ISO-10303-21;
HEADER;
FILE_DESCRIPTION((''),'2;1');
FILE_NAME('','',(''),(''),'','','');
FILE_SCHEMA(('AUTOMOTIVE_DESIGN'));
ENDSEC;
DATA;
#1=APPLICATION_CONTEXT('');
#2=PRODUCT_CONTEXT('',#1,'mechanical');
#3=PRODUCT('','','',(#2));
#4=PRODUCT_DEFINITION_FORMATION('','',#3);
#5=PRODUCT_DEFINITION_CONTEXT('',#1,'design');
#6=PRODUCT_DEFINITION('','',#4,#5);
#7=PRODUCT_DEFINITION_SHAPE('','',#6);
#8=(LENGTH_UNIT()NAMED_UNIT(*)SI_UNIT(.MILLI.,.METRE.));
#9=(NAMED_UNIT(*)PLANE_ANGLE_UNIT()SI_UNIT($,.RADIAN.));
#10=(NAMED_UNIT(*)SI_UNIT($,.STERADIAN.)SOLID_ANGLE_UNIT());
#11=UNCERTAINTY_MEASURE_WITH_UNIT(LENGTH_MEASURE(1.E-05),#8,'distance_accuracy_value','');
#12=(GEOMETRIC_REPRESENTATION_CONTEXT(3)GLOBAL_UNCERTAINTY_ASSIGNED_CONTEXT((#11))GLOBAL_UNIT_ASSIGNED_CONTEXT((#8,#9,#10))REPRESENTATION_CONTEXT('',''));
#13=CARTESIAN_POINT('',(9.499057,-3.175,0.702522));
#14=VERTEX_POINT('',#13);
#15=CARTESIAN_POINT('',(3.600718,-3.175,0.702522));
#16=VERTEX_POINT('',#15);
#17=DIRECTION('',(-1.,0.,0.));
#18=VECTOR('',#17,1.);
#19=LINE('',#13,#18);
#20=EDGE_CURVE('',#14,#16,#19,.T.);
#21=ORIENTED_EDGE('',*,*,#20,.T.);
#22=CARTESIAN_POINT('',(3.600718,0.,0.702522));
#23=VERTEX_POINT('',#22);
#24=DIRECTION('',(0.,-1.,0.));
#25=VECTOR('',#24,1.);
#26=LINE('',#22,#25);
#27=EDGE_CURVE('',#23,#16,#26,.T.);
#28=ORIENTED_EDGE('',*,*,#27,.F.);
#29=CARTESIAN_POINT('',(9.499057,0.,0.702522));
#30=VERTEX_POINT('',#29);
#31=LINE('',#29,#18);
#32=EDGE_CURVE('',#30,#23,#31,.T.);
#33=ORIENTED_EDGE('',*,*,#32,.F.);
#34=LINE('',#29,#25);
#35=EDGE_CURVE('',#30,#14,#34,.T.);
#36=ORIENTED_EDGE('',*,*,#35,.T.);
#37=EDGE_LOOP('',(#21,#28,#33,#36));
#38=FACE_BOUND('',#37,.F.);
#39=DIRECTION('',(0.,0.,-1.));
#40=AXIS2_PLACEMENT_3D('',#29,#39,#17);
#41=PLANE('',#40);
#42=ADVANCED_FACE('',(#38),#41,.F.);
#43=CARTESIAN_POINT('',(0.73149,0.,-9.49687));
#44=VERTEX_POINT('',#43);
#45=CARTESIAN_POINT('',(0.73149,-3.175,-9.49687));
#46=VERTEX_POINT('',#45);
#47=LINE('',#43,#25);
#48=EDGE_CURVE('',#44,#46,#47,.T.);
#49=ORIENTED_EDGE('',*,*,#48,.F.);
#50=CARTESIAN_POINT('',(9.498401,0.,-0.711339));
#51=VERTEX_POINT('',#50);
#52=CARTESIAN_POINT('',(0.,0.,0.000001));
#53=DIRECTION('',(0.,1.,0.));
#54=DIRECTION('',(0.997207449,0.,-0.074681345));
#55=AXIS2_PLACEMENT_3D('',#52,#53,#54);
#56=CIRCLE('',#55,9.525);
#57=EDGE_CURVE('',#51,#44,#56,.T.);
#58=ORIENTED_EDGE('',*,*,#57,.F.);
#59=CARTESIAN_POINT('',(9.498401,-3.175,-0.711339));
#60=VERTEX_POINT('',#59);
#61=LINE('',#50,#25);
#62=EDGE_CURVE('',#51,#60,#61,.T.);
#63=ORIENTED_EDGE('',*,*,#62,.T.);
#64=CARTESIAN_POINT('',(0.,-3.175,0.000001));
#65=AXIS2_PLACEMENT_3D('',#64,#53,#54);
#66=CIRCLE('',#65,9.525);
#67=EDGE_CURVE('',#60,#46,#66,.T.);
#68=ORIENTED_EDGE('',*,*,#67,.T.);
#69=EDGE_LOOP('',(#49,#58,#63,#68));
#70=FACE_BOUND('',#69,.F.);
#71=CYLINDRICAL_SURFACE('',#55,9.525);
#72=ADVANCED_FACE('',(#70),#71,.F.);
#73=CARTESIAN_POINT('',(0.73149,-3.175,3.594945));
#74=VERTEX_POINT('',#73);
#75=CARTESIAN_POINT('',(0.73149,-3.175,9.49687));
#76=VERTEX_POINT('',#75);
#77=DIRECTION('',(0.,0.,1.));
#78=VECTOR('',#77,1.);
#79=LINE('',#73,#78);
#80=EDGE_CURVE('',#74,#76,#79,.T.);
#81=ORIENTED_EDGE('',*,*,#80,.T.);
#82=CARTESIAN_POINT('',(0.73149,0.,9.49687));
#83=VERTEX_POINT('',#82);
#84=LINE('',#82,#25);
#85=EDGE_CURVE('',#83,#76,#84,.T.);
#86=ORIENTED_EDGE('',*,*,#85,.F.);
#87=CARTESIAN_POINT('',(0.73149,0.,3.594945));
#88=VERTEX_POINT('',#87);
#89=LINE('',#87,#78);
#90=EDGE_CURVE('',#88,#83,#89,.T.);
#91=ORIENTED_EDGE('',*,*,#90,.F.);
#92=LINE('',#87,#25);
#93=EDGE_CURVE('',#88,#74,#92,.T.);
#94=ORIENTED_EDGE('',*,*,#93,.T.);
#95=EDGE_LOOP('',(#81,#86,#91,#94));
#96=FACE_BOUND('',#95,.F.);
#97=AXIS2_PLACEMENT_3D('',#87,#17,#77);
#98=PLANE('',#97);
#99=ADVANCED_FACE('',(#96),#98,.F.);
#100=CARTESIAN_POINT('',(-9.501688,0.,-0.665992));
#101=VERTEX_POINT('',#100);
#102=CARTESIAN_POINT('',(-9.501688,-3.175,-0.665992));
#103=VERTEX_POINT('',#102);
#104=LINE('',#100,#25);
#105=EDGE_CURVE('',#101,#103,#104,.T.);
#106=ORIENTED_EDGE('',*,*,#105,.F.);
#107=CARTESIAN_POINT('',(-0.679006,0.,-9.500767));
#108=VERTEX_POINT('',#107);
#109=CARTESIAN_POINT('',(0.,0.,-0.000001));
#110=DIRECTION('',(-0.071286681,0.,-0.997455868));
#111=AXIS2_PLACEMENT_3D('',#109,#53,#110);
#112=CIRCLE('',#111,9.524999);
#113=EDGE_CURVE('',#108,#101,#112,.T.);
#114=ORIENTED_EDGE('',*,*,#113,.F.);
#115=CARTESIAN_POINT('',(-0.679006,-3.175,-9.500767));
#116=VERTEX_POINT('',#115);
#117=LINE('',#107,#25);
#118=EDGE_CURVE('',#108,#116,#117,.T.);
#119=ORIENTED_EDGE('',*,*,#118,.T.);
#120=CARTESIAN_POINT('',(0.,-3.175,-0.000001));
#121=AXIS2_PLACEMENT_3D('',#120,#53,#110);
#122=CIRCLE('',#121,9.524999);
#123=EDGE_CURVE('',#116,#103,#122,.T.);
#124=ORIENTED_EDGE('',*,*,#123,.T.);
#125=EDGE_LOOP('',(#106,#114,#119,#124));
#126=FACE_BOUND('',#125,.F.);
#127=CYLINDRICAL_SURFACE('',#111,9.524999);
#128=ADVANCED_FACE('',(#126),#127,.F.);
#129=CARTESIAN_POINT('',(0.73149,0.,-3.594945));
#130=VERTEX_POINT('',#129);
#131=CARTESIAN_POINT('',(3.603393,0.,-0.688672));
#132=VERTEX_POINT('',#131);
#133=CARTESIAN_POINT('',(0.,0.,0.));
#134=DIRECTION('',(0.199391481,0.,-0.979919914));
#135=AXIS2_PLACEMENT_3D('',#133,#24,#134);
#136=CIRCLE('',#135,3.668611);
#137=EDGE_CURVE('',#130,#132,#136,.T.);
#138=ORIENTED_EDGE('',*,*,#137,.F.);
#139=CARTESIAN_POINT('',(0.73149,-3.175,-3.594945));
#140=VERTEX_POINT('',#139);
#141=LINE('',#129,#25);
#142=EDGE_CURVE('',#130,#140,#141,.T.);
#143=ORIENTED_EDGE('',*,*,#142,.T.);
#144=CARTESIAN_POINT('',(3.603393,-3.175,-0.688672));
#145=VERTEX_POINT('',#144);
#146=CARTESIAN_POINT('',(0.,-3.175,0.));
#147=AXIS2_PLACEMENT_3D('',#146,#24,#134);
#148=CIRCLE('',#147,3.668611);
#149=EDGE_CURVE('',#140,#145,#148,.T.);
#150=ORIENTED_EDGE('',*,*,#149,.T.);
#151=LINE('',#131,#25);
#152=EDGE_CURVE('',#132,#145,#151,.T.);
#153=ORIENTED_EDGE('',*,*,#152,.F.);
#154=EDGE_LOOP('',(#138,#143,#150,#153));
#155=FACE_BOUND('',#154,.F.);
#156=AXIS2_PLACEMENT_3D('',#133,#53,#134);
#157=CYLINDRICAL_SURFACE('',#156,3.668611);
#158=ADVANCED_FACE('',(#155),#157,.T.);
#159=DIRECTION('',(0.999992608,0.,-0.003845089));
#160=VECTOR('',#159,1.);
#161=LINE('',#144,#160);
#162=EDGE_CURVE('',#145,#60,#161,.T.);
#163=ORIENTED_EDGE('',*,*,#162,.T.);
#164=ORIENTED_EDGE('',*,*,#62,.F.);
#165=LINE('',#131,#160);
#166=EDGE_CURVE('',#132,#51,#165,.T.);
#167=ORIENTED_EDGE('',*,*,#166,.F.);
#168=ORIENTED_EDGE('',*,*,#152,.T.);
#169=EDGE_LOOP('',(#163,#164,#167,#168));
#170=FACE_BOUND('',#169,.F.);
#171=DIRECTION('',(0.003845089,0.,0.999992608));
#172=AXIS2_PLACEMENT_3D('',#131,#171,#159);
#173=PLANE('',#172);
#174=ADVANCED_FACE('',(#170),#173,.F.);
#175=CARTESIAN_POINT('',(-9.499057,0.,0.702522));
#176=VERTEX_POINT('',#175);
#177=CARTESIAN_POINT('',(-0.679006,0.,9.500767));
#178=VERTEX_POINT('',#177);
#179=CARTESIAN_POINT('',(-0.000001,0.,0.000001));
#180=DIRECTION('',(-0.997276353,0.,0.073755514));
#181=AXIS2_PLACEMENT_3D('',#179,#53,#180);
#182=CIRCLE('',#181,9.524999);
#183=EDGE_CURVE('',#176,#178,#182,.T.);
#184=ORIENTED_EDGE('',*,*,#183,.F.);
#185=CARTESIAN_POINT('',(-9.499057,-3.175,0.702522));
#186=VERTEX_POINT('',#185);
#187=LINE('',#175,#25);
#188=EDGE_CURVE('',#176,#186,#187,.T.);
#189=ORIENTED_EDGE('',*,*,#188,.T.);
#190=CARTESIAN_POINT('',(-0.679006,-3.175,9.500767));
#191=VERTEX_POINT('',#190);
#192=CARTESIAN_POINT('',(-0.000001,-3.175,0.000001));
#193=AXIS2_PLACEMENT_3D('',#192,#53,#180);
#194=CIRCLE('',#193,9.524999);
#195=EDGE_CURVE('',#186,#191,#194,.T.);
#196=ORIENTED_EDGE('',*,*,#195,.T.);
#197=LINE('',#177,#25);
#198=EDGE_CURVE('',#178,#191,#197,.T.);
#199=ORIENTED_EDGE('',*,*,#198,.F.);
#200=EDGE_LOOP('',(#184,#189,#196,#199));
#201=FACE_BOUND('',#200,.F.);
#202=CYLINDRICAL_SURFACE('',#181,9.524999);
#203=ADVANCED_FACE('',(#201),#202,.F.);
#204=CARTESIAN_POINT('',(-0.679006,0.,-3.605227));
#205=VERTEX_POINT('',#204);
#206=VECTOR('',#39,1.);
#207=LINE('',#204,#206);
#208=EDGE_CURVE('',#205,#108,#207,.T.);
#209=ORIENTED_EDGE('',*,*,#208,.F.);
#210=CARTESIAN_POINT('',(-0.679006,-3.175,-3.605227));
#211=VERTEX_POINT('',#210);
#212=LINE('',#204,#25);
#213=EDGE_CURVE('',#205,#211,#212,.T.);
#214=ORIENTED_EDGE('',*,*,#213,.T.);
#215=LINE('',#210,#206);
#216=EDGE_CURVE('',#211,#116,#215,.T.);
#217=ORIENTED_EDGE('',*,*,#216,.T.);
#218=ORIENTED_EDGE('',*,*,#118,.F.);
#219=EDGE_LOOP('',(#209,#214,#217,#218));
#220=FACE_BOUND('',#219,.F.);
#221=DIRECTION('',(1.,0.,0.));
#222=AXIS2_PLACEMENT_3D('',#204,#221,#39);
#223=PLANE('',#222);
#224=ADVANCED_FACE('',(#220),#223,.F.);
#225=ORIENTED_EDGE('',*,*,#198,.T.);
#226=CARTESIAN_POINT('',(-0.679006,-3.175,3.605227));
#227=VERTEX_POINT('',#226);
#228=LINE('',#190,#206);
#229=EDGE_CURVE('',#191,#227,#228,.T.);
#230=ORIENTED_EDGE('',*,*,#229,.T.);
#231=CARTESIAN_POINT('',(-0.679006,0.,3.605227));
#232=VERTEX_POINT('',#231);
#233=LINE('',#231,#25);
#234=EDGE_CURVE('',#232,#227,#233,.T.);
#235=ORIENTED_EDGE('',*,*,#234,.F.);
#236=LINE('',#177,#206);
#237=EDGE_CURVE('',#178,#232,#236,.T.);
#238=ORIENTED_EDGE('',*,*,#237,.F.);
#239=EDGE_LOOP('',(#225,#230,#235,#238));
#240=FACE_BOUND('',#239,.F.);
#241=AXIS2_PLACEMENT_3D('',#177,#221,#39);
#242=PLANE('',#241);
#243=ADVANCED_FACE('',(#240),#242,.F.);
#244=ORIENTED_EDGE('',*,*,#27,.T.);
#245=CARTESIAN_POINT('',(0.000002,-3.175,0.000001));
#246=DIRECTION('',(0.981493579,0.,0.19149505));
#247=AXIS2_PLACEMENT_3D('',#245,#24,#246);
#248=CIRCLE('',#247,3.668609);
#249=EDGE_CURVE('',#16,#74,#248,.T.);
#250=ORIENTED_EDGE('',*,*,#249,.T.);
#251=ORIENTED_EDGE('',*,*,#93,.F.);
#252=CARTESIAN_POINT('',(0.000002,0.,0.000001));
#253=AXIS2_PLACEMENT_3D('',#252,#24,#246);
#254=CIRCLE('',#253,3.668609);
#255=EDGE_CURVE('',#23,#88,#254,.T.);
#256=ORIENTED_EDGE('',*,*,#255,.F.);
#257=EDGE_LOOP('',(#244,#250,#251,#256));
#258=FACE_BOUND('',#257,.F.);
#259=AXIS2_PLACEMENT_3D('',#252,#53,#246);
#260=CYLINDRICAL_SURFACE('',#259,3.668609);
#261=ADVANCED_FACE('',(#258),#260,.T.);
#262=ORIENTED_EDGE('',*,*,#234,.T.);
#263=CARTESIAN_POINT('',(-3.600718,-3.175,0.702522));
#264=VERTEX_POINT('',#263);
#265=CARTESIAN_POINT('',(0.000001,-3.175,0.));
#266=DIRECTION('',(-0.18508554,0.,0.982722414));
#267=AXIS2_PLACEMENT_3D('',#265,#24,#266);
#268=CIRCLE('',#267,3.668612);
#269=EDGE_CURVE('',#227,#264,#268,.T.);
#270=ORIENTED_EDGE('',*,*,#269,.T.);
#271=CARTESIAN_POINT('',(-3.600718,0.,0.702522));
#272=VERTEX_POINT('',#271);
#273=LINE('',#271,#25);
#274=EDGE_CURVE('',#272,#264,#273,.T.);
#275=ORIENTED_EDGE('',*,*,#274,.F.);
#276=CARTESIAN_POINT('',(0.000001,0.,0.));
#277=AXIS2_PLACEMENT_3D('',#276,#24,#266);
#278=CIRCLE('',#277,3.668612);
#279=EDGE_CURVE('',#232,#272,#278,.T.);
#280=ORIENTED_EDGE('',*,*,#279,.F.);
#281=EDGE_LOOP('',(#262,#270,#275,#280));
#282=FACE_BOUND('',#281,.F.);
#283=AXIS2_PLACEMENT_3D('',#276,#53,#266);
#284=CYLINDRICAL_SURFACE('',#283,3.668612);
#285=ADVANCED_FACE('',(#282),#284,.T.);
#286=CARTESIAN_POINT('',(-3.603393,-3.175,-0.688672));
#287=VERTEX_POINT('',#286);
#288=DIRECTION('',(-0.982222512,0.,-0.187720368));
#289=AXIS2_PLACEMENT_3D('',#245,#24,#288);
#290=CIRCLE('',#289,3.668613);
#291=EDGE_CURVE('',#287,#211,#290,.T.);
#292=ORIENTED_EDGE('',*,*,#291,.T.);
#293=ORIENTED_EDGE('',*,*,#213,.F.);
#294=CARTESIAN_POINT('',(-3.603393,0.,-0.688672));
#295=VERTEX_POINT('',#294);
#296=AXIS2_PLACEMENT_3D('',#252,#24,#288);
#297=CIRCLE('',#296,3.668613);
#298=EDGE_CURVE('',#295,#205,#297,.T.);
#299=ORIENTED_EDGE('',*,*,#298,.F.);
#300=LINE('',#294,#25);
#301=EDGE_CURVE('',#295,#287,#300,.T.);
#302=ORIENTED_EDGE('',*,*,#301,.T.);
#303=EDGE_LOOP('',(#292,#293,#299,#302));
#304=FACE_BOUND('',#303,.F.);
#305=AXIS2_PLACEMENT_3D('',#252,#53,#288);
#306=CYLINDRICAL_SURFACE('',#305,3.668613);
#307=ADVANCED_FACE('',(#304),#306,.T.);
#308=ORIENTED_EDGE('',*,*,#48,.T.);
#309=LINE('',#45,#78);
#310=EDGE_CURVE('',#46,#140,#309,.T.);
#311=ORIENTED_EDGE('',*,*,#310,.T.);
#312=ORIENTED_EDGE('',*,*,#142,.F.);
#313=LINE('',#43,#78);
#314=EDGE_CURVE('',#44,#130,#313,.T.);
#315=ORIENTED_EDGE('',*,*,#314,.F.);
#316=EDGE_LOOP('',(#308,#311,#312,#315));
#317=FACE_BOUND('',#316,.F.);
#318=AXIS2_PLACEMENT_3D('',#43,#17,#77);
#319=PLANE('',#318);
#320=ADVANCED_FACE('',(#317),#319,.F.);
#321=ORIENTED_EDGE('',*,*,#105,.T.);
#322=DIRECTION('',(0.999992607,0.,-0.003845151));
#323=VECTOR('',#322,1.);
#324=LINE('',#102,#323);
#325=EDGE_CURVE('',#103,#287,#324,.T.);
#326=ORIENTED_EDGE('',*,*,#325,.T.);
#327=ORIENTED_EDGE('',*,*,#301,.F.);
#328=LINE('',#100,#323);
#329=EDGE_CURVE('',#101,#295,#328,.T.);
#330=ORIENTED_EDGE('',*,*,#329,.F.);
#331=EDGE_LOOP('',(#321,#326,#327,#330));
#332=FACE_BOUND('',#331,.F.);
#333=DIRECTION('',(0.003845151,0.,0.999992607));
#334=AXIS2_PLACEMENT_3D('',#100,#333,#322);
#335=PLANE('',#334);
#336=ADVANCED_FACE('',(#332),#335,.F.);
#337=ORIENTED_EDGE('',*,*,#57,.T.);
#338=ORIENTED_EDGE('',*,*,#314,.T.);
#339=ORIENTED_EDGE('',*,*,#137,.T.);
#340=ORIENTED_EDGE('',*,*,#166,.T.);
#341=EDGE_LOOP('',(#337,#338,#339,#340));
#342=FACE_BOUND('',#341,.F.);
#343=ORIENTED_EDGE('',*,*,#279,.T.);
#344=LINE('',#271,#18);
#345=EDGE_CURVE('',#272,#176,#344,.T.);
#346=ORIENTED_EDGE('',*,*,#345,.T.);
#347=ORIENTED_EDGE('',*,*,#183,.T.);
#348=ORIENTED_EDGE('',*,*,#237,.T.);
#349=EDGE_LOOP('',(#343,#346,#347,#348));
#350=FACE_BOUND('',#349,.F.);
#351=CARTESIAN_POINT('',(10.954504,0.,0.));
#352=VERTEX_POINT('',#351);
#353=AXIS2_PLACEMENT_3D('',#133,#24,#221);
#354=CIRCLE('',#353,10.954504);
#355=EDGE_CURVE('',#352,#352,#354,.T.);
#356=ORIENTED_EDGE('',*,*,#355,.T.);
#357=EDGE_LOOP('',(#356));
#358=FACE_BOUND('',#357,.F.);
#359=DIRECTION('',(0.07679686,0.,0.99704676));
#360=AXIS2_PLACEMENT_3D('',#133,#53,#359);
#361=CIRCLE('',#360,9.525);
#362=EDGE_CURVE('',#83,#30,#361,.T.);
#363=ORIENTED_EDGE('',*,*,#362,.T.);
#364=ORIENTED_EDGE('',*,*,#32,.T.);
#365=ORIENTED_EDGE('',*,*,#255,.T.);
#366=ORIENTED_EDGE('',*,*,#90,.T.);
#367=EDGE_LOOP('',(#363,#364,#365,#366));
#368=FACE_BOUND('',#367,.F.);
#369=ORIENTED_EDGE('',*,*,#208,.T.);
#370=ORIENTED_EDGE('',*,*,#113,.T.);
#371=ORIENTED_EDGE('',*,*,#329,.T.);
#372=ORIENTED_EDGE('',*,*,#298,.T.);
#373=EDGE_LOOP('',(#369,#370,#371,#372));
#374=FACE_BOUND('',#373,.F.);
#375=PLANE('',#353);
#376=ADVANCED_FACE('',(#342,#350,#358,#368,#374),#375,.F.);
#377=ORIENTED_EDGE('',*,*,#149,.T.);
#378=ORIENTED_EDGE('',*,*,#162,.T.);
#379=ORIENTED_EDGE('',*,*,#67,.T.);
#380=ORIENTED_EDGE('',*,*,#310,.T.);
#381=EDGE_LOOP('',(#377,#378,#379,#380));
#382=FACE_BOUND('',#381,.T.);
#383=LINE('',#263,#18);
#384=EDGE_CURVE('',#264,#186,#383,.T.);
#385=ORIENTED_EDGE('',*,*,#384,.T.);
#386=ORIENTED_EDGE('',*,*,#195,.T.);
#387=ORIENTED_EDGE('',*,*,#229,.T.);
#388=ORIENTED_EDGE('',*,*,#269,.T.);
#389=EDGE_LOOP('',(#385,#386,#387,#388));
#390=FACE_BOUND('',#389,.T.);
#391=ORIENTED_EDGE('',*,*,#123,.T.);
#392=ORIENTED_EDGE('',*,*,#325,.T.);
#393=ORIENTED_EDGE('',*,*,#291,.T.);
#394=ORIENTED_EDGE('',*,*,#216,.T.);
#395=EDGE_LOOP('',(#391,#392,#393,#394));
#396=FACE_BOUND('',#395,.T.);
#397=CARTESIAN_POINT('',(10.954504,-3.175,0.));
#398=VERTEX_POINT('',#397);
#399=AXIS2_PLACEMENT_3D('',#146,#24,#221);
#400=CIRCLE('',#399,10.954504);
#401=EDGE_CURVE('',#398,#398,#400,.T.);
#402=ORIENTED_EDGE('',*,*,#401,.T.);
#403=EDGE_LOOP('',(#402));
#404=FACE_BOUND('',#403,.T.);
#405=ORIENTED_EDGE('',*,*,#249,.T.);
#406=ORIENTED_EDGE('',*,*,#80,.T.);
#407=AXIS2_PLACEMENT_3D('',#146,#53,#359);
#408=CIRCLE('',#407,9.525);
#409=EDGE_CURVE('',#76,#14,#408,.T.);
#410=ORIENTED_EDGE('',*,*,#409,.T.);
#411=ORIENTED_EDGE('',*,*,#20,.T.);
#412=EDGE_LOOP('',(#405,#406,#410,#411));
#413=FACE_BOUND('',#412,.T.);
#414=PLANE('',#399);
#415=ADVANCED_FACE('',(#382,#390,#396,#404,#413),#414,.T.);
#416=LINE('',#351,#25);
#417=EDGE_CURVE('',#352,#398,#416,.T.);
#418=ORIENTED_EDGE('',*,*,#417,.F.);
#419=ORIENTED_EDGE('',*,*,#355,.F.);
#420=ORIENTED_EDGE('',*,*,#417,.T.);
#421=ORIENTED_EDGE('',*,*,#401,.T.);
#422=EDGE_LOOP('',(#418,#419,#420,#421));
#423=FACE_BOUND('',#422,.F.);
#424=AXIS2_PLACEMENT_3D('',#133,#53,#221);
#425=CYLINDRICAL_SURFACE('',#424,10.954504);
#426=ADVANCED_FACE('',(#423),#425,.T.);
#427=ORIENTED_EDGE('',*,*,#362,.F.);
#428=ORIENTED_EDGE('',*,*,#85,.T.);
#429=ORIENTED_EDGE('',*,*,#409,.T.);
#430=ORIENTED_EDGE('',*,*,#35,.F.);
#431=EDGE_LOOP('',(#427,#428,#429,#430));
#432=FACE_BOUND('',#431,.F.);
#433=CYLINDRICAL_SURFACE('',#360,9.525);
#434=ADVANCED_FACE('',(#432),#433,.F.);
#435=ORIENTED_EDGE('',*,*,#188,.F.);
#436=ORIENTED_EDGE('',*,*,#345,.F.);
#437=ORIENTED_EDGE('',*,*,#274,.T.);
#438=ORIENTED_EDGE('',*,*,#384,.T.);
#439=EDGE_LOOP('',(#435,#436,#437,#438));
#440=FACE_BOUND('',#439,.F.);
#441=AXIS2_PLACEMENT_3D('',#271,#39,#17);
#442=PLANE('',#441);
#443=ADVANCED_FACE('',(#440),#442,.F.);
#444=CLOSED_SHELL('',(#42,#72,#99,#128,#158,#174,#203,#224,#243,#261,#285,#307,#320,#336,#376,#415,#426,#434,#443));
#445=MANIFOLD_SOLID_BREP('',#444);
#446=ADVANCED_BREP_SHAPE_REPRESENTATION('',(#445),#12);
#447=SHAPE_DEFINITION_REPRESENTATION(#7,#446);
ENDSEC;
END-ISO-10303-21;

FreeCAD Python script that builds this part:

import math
import FreeCAD as App
import Part
import Sketcher

V = App.Vector
Q = App.Units.Quantity

doc = App.newDocument("Part")
params = doc.addObject("Spreadsheet::Sheet", "Params")
for row, (alias, value) in enumerate([
    ("sketch1_radius", "0.375 in"),
    ("sketch1_radius2", "0.375 in"),
    ("sketch1_radius3", "0.375 in"),
    ("sketch1_radius4", "0.375 in"),
    ("pad1_length", "0.125 in"),
], start=1):
    params.set(f"A{row}", alias)
    params.set(f"B{row}", "=" + value)
    params.setAlias(f"B{row}", alias)

body = doc.addObject("PartDesign::Body", "Body")

sketch1 = body.newObject("Sketcher::SketchObject", "Sketch")
sketch1.AttachmentSupport = (doc.getObject("XZ_Plane"), [""])
sketch1.MapMode = "FlatFace"
sketch1.addGeometry([
    Part.Circle(V(0, 0, 0), V(0, 0, 1), 10.954504),
    Part.ArcOfCircle(Part.Circle(V(0, 0, 0), V(0, 0, 1), 9.525), math.radians(4.229727), math.radians(85.595527)),
    Part.LineSegment(V(9.499057, 0.702522, 0), V(3.600718, 0.702522, 0)),
    Part.ArcOfCircle(Part.Circle(V(0.000002, 0.000001, 0), V(0, 0, 1), 3.668609), math.radians(11.040046), math.radians(78.498638)),
    Part.LineSegment(V(0.73149, 3.594945, 0), V(0.73149, 9.49687, 0)),
    Part.ArcOfCircle(Part.Circle(V(0.000001, 0, 0), V(0, 0, 1), 3.668612), math.radians(100.66612), math.radians(168.959932)),
    Part.LineSegment(V(-3.600718, 0.702522, 0), V(-9.499057, 0.702522, 0)),
    Part.ArcOfCircle(Part.Circle(V(-0.000001, 0.000001, 0), V(0, 0, 1), 9.524999), math.radians(94.087892), math.radians(175.77028)),
    Part.LineSegment(V(-0.679006, 9.500767, 0), V(-0.679006, 3.605227, 0)),
    Part.ArcOfCircle(Part.Circle(V(0, 0.000001, 0), V(0, 0, 1), 9.525), math.radians(-85.595526), math.radians(-4.282913)),
    Part.LineSegment(V(0.73149, -9.49687, 0), V(0.73149, -3.594945, 0)),
    Part.ArcOfCircle(Part.Circle(V(0, 0, 0), V(0, 0, 1), 3.668611), math.radians(-78.498623), math.radians(-10.819766)),
    Part.LineSegment(V(3.603393, -0.688672, 0), V(9.498401, -0.711339, 0)),
    Part.ArcOfCircle(Part.Circle(V(0.000002, 0.000001, 0), V(0, 0, 1), 3.668613), math.radians(-169.180223), math.radians(-100.666124)),
    Part.LineSegment(V(-0.679006, -3.605227, 0), V(-0.679006, -9.500767, 0)),
    Part.ArcOfCircle(Part.Circle(V(0, -0.000001, 0), V(0, 0, 1), 9.524999), math.radians(-175.990587), math.radians(-94.087893)),
    Part.LineSegment(V(-9.501688, -0.665992, 0), V(-3.603393, -0.688672, 0)),
], False)
sketch1.addConstraint([
    Sketcher.Constraint("Coincident", 1, 1, 2, 1),
    Sketcher.Constraint("Coincident", 2, 2, 3, 1),
    Sketcher.Constraint("Coincident", 3, 2, 4, 1),
    Sketcher.Constraint("Coincident", 4, 2, 1, 2),
    Sketcher.Constraint("Coincident", 5, 2, 6, 1),
    Sketcher.Constraint("Coincident", 6, 2, 7, 2),
    Sketcher.Constraint("Coincident", 7, 1, 8, 1),
    Sketcher.Constraint("Coincident", 8, 2, 5, 1),
    Sketcher.Constraint("Coincident", 9, 1, 10, 1),
    Sketcher.Constraint("Coincident", 10, 2, 11, 1),
    Sketcher.Constraint("Coincident", 11, 2, 12, 1),
    Sketcher.Constraint("Coincident", 12, 2, 9, 2),
    Sketcher.Constraint("Coincident", 13, 2, 14, 1),
    Sketcher.Constraint("Coincident", 14, 2, 15, 2),
    Sketcher.Constraint("Coincident", 15, 1, 16, 1),
    Sketcher.Constraint("Coincident", 16, 2, 13, 1),
    Sketcher.Constraint("Horizontal", 2),
    Sketcher.Constraint("Vertical", 4),
    Sketcher.Constraint("Horizontal", 6),
    Sketcher.Constraint("Vertical", 8),
    Sketcher.Constraint("Vertical", 10),
    Sketcher.Constraint("Vertical", 14),
    Sketcher.Constraint("Coincident", 0, 3, -1, 1),
    Sketcher.Constraint("Coincident", 1, 3, -1, 1),
    Sketcher.Constraint("Coincident", 3, 3, -1, 1),
    Sketcher.Constraint("Coincident", 5, 3, -1, 1),
    Sketcher.Constraint("Coincident", 7, 3, -1, 1),
    Sketcher.Constraint("Coincident", 9, 3, -1, 1),
    Sketcher.Constraint("Coincident", 11, 3, -1, 1),
    Sketcher.Constraint("Coincident", 13, 3, -1, 1),
    Sketcher.Constraint("Coincident", 15, 3, -1, 1),
    Sketcher.Constraint("Radius", 1, Q("0.375 in")),
    Sketcher.Constraint("Radius", 7, Q("0.375 in")),
    Sketcher.Constraint("Radius", 9, Q("0.375 in")),
    Sketcher.Constraint("Radius", 15, Q("0.375 in")),
    Sketcher.Constraint("Diameter", 0, 21.909008),
    Sketcher.Constraint("Radius", 3, 3.668609),
    Sketcher.Constraint("Radius", 11, 3.668611),
    Sketcher.Constraint("Radius", 5, 3.668612),
    Sketcher.Constraint("Radius", 13, 3.668613),
    Sketcher.Constraint("DistanceX", 2, 2, 2, 1, 5.898339),
    Sketcher.Constraint("DistanceX", 6, 2, 6, 1, 5.898339),
    Sketcher.Constraint("DistanceY", 8, 2, 8, 1, 5.89554),
    Sketcher.Constraint("DistanceY", 14, 2, 14, 1, 5.89554),
    Sketcher.Constraint("DistanceX", -1, 1, 12, 2, 9.498401),
    Sketcher.Constraint("Distance", 12, 5.895052),
    Sketcher.Constraint("Distance", 16, 5.898339),
    Sketcher.Constraint("DistanceY", 4, 1, 4, 2, 5.901925),
    Sketcher.Constraint("DistanceY", 10, 1, 10, 2, 5.901925),
    Sketcher.Constraint("DistanceY", 15, 1, -1, 1, 0.665992),
])
sketch1.setExpression("Constraints[31]", "Params.sketch1_radius")
sketch1.setExpression("Constraints[32]", "Params.sketch1_radius2")
sketch1.setExpression("Constraints[33]", "Params.sketch1_radius3")
sketch1.setExpression("Constraints[34]", "Params.sketch1_radius4")
pad1 = body.newObject("PartDesign::Pad", "Pad")
pad1.Profile = sketch1
pad1.setExpression("Length", "Params.pad1_length")

doc.recompute()
